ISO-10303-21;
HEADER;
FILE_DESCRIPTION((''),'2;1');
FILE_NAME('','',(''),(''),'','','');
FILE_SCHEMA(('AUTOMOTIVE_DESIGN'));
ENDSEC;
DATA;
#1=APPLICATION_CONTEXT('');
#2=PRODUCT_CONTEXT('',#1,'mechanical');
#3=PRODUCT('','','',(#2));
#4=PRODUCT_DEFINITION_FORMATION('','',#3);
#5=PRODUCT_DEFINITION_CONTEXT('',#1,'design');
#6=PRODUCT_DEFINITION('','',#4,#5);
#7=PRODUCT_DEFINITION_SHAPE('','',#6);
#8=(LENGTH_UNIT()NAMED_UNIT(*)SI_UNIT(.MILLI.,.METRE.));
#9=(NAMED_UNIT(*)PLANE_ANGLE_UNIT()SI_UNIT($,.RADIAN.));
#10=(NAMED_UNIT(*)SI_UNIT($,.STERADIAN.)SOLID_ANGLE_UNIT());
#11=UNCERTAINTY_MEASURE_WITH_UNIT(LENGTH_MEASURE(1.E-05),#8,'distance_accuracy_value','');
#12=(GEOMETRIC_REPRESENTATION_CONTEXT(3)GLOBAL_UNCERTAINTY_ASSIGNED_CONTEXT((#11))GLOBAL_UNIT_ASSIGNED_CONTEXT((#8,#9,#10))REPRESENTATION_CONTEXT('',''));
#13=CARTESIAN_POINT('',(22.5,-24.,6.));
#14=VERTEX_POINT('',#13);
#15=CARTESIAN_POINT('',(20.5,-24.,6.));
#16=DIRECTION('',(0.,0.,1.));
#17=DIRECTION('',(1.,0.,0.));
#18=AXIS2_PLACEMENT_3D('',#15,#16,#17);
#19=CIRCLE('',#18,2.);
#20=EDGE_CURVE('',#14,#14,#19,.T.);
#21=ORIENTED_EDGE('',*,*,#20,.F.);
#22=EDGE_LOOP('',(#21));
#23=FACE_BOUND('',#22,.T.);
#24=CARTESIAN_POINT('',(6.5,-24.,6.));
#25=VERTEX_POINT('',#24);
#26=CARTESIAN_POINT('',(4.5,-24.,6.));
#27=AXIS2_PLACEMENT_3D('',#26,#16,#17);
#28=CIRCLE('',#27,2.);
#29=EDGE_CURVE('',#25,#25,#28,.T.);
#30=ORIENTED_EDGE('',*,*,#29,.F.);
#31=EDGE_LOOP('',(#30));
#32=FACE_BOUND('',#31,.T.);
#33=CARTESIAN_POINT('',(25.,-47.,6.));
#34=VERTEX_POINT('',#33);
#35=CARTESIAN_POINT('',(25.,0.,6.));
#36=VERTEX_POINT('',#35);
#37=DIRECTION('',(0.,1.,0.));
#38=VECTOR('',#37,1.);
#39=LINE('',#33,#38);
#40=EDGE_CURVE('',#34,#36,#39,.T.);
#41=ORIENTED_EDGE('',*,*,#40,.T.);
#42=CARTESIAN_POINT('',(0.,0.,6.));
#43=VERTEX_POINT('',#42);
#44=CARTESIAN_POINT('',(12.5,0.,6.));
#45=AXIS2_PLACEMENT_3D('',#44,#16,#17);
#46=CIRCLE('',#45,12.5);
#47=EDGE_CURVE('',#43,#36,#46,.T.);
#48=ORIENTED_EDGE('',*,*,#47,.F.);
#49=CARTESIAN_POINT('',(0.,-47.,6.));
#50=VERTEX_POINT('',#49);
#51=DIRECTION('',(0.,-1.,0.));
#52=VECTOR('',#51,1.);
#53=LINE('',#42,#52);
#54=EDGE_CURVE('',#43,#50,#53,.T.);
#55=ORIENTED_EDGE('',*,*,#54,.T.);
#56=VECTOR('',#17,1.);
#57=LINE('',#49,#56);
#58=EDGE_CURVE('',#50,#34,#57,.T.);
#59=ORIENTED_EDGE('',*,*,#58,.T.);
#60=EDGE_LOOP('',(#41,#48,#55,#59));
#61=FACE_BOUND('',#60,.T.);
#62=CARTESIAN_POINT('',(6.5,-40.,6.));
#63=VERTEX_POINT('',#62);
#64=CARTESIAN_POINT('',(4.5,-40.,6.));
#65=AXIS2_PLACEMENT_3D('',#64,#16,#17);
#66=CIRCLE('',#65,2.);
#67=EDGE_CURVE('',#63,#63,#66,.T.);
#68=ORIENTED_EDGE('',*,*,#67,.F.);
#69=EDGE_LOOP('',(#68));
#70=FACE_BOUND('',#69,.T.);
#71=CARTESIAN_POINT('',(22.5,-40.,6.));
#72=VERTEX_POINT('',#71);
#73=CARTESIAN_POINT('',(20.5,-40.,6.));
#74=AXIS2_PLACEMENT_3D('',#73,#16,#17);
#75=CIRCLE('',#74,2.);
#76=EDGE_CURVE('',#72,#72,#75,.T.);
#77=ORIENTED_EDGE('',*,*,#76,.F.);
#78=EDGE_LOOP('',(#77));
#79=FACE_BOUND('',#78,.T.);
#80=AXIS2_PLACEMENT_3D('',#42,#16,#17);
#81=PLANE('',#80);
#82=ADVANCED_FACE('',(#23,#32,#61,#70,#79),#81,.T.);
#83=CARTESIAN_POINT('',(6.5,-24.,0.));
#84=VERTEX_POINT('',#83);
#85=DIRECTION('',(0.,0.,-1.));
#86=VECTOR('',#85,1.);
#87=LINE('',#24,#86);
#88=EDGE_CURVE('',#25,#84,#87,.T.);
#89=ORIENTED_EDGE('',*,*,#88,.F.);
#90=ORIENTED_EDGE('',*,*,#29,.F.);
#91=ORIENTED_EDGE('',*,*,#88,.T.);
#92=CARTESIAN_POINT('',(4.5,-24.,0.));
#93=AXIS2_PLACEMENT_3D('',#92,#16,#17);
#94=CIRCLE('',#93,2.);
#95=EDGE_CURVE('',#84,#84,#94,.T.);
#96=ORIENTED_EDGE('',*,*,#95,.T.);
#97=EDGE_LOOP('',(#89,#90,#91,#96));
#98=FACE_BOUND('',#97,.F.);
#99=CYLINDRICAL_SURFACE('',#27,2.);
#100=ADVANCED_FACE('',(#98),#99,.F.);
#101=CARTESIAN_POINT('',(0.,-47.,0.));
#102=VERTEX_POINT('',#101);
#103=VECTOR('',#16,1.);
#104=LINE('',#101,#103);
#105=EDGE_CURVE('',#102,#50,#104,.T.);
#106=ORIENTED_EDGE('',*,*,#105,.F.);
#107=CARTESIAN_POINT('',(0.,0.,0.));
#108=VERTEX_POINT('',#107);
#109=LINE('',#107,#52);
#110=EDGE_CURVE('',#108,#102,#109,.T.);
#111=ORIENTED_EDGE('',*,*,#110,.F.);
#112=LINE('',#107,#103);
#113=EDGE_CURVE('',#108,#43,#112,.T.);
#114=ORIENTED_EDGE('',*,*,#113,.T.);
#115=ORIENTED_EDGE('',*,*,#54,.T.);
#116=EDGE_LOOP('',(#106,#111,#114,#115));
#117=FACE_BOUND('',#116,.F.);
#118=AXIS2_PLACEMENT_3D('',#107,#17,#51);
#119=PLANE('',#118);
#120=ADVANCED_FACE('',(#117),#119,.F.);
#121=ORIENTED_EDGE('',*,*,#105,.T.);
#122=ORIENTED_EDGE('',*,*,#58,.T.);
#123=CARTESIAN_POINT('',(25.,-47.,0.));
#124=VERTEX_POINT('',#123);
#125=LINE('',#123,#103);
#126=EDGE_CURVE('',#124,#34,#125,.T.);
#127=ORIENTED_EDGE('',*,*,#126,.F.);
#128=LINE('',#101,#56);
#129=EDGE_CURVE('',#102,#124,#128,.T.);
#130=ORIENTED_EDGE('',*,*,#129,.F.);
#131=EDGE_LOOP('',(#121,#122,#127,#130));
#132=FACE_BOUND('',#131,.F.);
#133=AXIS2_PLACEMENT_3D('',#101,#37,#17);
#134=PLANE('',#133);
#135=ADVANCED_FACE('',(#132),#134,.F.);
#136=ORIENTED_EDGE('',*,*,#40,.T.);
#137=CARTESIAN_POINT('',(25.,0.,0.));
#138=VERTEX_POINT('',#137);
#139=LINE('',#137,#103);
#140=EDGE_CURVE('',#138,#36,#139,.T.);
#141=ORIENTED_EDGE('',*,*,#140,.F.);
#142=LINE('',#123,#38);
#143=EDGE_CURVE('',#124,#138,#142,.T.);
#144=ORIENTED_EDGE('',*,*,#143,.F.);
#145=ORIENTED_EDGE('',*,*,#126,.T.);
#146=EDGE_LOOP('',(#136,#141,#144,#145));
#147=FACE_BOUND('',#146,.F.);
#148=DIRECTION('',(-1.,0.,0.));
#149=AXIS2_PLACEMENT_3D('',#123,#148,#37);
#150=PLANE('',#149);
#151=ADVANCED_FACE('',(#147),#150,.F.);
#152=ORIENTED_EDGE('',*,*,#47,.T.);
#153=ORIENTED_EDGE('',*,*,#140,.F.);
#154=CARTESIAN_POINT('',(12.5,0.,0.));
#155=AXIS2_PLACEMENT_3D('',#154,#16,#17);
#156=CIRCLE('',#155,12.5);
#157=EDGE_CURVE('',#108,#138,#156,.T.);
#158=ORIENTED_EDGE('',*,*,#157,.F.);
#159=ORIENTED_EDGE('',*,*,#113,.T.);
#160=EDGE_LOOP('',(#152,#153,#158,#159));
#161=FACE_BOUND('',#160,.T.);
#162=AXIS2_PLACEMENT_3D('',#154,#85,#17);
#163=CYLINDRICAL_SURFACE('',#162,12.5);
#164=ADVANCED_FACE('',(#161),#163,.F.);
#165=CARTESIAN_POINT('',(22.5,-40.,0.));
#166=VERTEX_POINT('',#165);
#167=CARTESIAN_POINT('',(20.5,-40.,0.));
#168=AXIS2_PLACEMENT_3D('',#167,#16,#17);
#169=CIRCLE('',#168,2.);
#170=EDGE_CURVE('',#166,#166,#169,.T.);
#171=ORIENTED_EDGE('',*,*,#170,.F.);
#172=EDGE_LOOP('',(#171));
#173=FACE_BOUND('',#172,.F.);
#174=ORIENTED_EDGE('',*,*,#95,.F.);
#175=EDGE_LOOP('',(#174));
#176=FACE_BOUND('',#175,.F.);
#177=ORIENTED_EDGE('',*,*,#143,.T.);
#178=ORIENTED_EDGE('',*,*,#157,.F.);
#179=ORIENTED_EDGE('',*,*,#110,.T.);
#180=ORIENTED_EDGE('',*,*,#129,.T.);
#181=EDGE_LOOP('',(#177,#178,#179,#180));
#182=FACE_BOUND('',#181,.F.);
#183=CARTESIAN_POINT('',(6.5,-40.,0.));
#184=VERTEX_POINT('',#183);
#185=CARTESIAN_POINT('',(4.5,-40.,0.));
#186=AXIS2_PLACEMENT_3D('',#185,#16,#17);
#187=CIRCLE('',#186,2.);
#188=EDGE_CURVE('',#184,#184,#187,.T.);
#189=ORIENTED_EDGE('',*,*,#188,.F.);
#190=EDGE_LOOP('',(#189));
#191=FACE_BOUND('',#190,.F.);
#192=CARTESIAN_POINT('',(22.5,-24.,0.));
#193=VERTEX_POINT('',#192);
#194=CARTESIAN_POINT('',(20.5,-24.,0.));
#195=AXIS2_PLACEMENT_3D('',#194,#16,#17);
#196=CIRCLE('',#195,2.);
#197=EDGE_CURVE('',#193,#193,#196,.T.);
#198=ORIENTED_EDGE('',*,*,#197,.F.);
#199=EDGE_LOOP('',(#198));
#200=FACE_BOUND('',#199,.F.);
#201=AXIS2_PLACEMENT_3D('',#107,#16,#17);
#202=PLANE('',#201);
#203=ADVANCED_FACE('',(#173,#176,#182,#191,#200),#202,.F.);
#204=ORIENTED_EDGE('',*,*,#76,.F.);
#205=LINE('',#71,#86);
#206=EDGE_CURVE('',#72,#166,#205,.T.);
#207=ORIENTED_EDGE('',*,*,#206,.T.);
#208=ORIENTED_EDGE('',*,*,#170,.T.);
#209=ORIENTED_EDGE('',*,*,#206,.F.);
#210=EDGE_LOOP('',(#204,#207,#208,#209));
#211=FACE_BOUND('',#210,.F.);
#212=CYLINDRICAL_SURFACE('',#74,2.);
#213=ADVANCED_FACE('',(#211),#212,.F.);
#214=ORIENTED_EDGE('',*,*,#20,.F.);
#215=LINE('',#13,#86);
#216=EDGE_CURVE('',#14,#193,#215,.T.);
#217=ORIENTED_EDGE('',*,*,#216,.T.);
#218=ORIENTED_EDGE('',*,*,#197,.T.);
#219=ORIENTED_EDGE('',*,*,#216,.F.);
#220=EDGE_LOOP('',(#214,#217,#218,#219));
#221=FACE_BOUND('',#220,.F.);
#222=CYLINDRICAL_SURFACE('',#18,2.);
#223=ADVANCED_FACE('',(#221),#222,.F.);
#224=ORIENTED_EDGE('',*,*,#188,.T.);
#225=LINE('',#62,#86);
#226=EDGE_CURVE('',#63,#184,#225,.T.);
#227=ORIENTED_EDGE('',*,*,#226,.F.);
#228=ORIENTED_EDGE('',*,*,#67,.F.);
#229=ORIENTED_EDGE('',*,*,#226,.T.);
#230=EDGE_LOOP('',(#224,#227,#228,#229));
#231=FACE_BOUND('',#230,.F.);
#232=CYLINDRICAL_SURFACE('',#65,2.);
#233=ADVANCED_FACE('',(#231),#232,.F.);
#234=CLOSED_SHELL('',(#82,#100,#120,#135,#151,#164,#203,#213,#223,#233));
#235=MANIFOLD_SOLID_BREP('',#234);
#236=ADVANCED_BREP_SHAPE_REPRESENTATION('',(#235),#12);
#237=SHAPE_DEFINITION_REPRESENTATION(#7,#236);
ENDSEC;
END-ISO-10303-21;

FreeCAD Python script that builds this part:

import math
import FreeCAD as App
import Part
import Sketcher

doc = App.newDocument("Part")
body = doc.addObject("PartDesign::Body", "Body")

sketch1 = doc.addObject("Sketcher::SketchObject", "Sketch")
body.addObject(sketch1)
sketch1.AttachmentSupport = (doc.XY_Plane, [""])
sketch1.MapMode = "FlatFace"
sketch1.addGeometry([
    Part.ArcOfCircle(Part.Circle(App.Vector(12.5, 0, 0), App.Vector(0, 0, 1), 12.5), math.radians(180), math.radians(360)),
    Part.LineSegment(App.Vector(0, 0, 0), App.Vector(0, -47, 0)),
    Part.LineSegment(App.Vector(0, -47, 0), App.Vector(25, -47, 0)),
    Part.LineSegment(App.Vector(25, -47, 0), App.Vector(25, 0, 0)),
], False)
sketch1.addConstraint([
    Sketcher.Constraint("Tangent", 0, 1, 1, 1),
    Sketcher.Constraint("Coincident", 1, 2, 2, 1),
    Sketcher.Constraint("Coincident", 2, 2, 3, 1),
    Sketcher.Constraint("Tangent", 3, 2, 0, 2),
    Sketcher.Constraint("Vertical", 1),
    Sketcher.Constraint("Horizontal", 2),
    Sketcher.Constraint("Vertical", 3),
    Sketcher.Constraint("Coincident", 0, 1, -1, 1),
    Sketcher.Constraint("Radius", 0, 12.5),
    Sketcher.Constraint("DistanceY", 1, 2, 1, 1, 47.0),
])
pad1 = doc.addObject("PartDesign::Pad", "Pad")
body.addObject(pad1)
pad1.Profile = sketch1
pad1.Length = 6

sketch2 = doc.addObject("Sketcher::SketchObject", "Sketch001")
body.addObject(sketch2)
sketch2.AttachmentSupport = (doc.XY_Plane, [""])
sketch2.MapMode = "FlatFace"
sketch2.AttachmentOffset = App.Placement(App.Vector(0, 0, 6), App.Rotation())
sketch2.addGeometry([
    Part.Circle(App.Vector(4.5, -24, 0), App.Vector(0, 0, 1), 2),
    Part.Circle(App.Vector(20.5, -24, 0), App.Vector(0, 0, 1), 2),
    Part.Circle(App.Vector(4.5, -40, 0), App.Vector(0, 0, 1), 2),
    Part.Circle(App.Vector(20.5, -40, 0), App.Vector(0, 0, 1), 2),
], False)
sketch2.addConstraint([
    Sketcher.Constraint("Equal", 0, 1),
    Sketcher.Constraint("Equal", 1, 2),
    Sketcher.Constraint("Equal", 2, 3),
    Sketcher.Constraint("Horizontal", 0, 3, 1, 3),
    Sketcher.Constraint("Horizontal", 2, 3, 3, 3),
    Sketcher.Constraint("Vertical", 0, 3, 2, 3),
    Sketcher.Constraint("Vertical", 1, 3, 3, 3),
    Sketcher.Constraint("Diameter", 0, 4.0),
    Sketcher.Constraint("DistanceX", 0, 3, 1, 3, 16.0),
    Sketcher.Constraint("DistanceY", 2, 3, 0, 3, 16.0),
    Sketcher.Constraint("DistanceX", -1, 1, 0, 3, 4.5),
    Sketcher.Constraint("DistanceY", 0, 3, -1, 1, 24.0),
])
pocket1 = doc.addObject("PartDesign::Pocket", "Pocket")
body.addObject(pocket1)
pocket1.Profile = sketch2
pocket1.Type = "ThroughAll"

doc.recompute()
